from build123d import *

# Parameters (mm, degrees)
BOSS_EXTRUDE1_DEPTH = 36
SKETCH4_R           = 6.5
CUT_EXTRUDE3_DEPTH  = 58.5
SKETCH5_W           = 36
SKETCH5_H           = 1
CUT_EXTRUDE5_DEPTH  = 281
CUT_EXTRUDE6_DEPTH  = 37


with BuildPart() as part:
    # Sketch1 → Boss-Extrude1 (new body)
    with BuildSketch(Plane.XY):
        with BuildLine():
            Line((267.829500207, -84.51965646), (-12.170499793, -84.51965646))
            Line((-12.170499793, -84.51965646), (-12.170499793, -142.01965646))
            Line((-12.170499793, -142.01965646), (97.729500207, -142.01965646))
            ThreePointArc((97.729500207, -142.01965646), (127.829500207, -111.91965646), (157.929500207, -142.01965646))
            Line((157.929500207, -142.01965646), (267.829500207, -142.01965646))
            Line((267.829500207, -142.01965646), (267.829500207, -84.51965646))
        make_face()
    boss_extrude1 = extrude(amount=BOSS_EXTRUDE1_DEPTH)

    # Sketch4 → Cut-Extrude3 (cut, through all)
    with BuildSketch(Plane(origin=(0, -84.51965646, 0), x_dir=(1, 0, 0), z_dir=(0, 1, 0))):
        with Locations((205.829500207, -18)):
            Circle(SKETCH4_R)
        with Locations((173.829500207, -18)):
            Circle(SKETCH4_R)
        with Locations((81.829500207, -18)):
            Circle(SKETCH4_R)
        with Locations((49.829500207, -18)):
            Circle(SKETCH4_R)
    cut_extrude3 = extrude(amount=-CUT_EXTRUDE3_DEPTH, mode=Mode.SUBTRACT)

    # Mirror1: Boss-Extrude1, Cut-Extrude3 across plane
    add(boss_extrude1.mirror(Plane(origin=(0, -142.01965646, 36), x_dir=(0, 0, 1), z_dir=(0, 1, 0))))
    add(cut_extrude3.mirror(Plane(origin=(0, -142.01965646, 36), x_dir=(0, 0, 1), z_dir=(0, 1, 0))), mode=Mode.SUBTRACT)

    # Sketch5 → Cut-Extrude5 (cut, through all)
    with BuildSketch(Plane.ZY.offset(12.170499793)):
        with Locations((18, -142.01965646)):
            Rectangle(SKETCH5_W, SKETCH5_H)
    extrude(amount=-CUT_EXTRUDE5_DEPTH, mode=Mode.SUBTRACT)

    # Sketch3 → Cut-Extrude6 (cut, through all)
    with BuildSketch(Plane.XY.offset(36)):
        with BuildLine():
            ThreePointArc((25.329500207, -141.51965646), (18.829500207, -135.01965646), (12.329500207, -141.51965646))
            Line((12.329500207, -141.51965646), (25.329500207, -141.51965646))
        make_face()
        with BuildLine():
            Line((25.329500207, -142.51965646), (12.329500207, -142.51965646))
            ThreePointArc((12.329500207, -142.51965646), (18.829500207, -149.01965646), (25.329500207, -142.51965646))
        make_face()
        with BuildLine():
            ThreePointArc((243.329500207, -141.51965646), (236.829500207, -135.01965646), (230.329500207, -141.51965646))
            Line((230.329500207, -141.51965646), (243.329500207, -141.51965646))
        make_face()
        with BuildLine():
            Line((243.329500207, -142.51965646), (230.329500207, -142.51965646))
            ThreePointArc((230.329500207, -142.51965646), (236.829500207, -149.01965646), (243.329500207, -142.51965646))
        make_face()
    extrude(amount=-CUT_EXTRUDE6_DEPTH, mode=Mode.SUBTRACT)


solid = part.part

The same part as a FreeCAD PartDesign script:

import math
import FreeCAD as App
import Part
import Sketcher
from FreeCAD import Vector

doc = App.newDocument("Part")
params = doc.addObject("Spreadsheet::Sheet", "Params")
for row, (alias, value) in enumerate([
    ("sketch1_radius", "30.1 mm"),
    ("sketch1_width", "280 mm"),
    ("sketch1_height", "57.5 mm"),
    ("pad1_length", "36 mm"),
    ("sketch2_diameter", "13 mm"),
    ("sketch3_width", "1 mm"),
    ("sketch3_height", "36 mm"),
    ("sketch4_radius", "6.5 mm"),
], start=1):
    params.set(f"A{row}", alias)
    params.set(f"B{row}", "=" + value)
    params.setAlias(f"B{row}", alias)

body = doc.addObject("PartDesign::Body", "Body")
body.AllowCompound = True

# Sketch on XY plane
sketch1 = body.newObject("Sketcher::SketchObject", "Sketch")
sketch1.AttachmentSupport = (doc.getObject("XY_Plane"), [""])
sketch1.MapMode = "FlatFace"
sketch1.addGeometry([
    Part.LineSegment(Vector(268, -85, 0), Vector(-12, -85, 0)),  # 0
    Part.LineSegment(Vector(-12, -85, 0), Vector(-12, -142, 0)),  # 1
    Part.LineSegment(Vector(-12, -142, 0), Vector(98, -142, 0)),  # 2
    Part.ArcOfCircle(Part.Circle(Vector(128, -142, 0), Vector(0, 0, 1), 30), math.radians(0), math.radians(180)),  # 3
    Part.LineSegment(Vector(158, -142, 0), Vector(268, -142, 0)),  # 4
    Part.LineSegment(Vector(268, -142, 0), Vector(268, -85, 0)),  # 5
], False)
sketch1.addConstraint([
    Sketcher.Constraint("Coincident", 0, 2, 1, 1),
    Sketcher.Constraint("Coincident", 1, 2, 2, 1),
    Sketcher.Constraint("Coincident", 2, 2, 3, 2),
    Sketcher.Constraint("Coincident", 3, 1, 4, 1),
    Sketcher.Constraint("Coincident", 4, 2, 5, 1),
    Sketcher.Constraint("Coincident", 5, 2, 0, 1),
    Sketcher.Constraint("Horizontal", 0),
    Sketcher.Constraint("Vertical", 1),
    Sketcher.Constraint("Horizontal", 2),
    Sketcher.Constraint("Horizontal", 4),
    Sketcher.Constraint("Vertical", 5),
    Sketcher.Constraint("Horizontal", 3, 3, 1, 2),
    Sketcher.Constraint("Horizontal", 2, 2, 3, 1),
    Sketcher.Constraint("Equal", 2, 4),
    Sketcher.Constraint("Radius", 3, 30.1),
    Sketcher.Constraint("DistanceX", 0, 2, 0, 1, 280.0),
    Sketcher.Constraint("DistanceY", 1, 2, 1, 1, 57.5),
    Sketcher.Constraint("DistanceX", -1, 1, 3, 3, 127.8295),
    Sketcher.Constraint("DistanceY", 3, 3, -1, 1, 142.019656),
])
sketch1.setExpression("Constraints[14]", "Params.sketch1_radius")
sketch1.setExpression("Constraints[15]", "Params.sketch1_width")
sketch1.setExpression("Constraints[16]", "Params.sketch1_height")
pad1 = body.newObject("PartDesign::Pad", "Pad")
pad1.Profile = sketch1
pad1.setExpression("Length", "Params.pad1_length")

# Sketch on XZ plane
sketch2 = body.newObject("Sketcher::SketchObject", "Sketch001")
sketch2.AttachmentSupport = (doc.getObject("XZ_Plane"), [""])
sketch2.MapMode = "FlatFace"
sketch2.AttachmentOffset = App.Placement(Vector(0, 0, 84.519656), App.Rotation())
sketch2.addGeometry([
    Part.Circle(Vector(206, 18, 0), Vector(0, 0, 1), 6),
    Part.Circle(Vector(174, 18, 0), Vector(0, 0, 1), 6),
    Part.Circle(Vector(82, 18, 0), Vector(0, 0, 1), 6),
    Part.Circle(Vector(50, 18, 0), Vector(0, 0, 1), 6),
], False)
sketch2.addConstraint([
    Sketcher.Constraint("Equal", 0, 1),
    Sketcher.Constraint("Equal", 1, 2),
    Sketcher.Constraint("Equal", 2, 3),
    Sketcher.Constraint("Horizontal", 0, 3, 1, 3),
    Sketcher.Constraint("Horizontal", 1, 3, 2, 3),
    Sketcher.Constraint("Horizontal", 2, 3, 3, 3),
    Sketcher.Constraint("Diameter", 0, 13.0),
    Sketcher.Constraint("DistanceY", -1, 1, 0, 3, 18.0),
    Sketcher.Constraint("DistanceX", 1, 3, 0, 3, 32.0),
    Sketcher.Constraint("DistanceX", 2, 3, 1, 3, 92.0),
    Sketcher.Constraint("DistanceX", 3, 3, 2, 3, 32.0),
    Sketcher.Constraint("DistanceX", -1, 1, 0, 3, 205.8295),
])
sketch2.setExpression("Constraints[6]", "Params.sketch2_diameter")
pocket1 = body.newObject("PartDesign::Pocket", "Pocket")
pocket1.Profile = sketch2
pocket1.Type = "ThroughAll"
pocket1.Reversed = True
doc.recompute()

datumplane = body.newObject("PartDesign::Plane", "DatumPlane")
datumplane.AttachmentSupport = (doc.getObject("XZ_Plane"), [""])
datumplane.MapMode = "FlatFace"
datumplane.AttachmentOffset = App.Placement(Vector(0, 0, 142.019656), App.Rotation())
mirrored = body.newObject("PartDesign::Mirrored", "Mirrored")
mirrored.Originals = [pad1, pocket1]
mirrored.MirrorPlane = (datumplane, [""])
body.Tip = mirrored

# Sketch on YZ plane
sketch3 = body.newObject("Sketcher::SketchObject", "Sketch002")
sketch3.AttachmentSupport = (doc.getObject("YZ_Plane"), [""])
sketch3.MapMode = "FlatFace"
sketch3.AttachmentOffset = App.Placement(Vector(0, 0, -12.1705), App.Rotation())
sketch3.addGeometry([
    Part.LineSegment(Vector(-141.5, 0, 0), Vector(-142.5, 0, 0)),
    Part.LineSegment(Vector(-142.5, 0, 0), Vector(-142.5, 36, 0)),
    Part.LineSegment(Vector(-142.5, 36, 0), Vector(-141.5, 36, 0)),
    Part.LineSegment(Vector(-141.5, 36, 0), Vector(-141.5, 0, 0)),
], False)
sketch3.addConstraint([
    Sketcher.Constraint("Coincident", 0, 2, 1, 1),
    Sketcher.Constraint("Coincident", 1, 2, 2, 1),
    Sketcher.Constraint("Coincident", 2, 2, 3, 1),
    Sketcher.Constraint("Coincident", 3, 2, 0, 1),
    Sketcher.Constraint("Horizontal", 0),
    Sketcher.Constraint("Vertical", 1),
    Sketcher.Constraint("Horizontal", 2),
    Sketcher.Constraint("Vertical", 3),
    Sketcher.Constraint("PointOnObject", 0, 2, -1),
    Sketcher.Constraint("DistanceX", 0, 2, 0, 1, 1.0),
    Sketcher.Constraint("DistanceY", 1, 1, 1, 2, 36.0),
    Sketcher.Constraint("DistanceX", 0, 2, -1, 1, 142.519656),
])
sketch3.setExpression("Constraints[9]", "Params.sketch3_width")
sketch3.setExpression("Constraints[10]", "Params.sketch3_height")
pocket2 = body.newObject("PartDesign::Pocket", "Pocket001")
pocket2.Profile = sketch3
pocket2.Type = "ThroughAll"
pocket2.Reversed = True

# Sketch on XY plane
sketch4 = body.newObject("Sketcher::SketchObject", "Sketch003")
sketch4.AttachmentSupport = (doc.getObject("XY_Plane"), [""])
sketch4.MapMode = "FlatFace"
sketch4.AttachmentOffset = App.Placement(Vector(0, 0, 36), App.Rotation())
sketch4.addGeometry([
    Part.ArcOfCircle(Part.Circle(Vector(19, -142, 0), Vector(0, 0, 1), 6), math.radians(0), math.radians(180)),  # 0
    Part.LineSegment(Vector(12, -142, 0), Vector(25, -142, 0)),  # 1
    Part.LineSegment(Vector(25, -143, 0), Vector(12, -143, 0)),  # 2
    Part.ArcOfCircle(Part.Circle(Vector(19, -143, 0), Vector(0, 0, 1), 6), math.radians(180), math.radians(360)),  # 3
    Part.ArcOfCircle(Part.Circle(Vector(237, -142, 0), Vector(0, 0, 1), 6), math.radians(0), math.radians(180)),  # 4
    Part.LineSegment(Vector(230, -142, 0), Vector(243, -142, 0)),  # 5
    Part.LineSegment(Vector(243, -143, 0), Vector(230, -143, 0)),  # 6
    Part.ArcOfCircle(Part.Circle(Vector(237, -143, 0), Vector(0, 0, 1), 6), math.radians(180), math.radians(360)),  # 7
], False)
sketch4.addConstraint([
    Sketcher.Constraint("Coincident", 0, 1, 1, 2),
    Sketcher.Constraint("Coincident", 1, 1, 0, 2),
    Sketcher.Constraint("Coincident", 2, 1, 3, 2),
    Sketcher.Constraint("Coincident", 3, 1, 2, 2),
    Sketcher.Constraint("Coincident", 4, 1, 5, 2),
    Sketcher.Constraint("Coincident", 5, 1, 4, 2),
    Sketcher.Constraint("Coincident", 6, 1, 7, 2),
    Sketcher.Constraint("Coincident", 7, 1, 6, 2),
    Sketcher.Constraint("Horizontal", 1),
    Sketcher.Constraint("Horizontal", 2),
    Sketcher.Constraint("Horizontal", 5),
    Sketcher.Constraint("Horizontal", 6),
    Sketcher.Constraint("Equal", 0, 3),
    Sketcher.Constraint("Equal", 3, 4),
    Sketcher.Constraint("Equal", 4, 7),
    Sketcher.Constraint("Horizontal", 0, 3, 4, 3),
    Sketcher.Constraint("Horizontal", 3, 3, 7, 3),
    Sketcher.Constraint("Horizontal", 4, 3, 0, 1),
    Sketcher.Constraint("Horizontal", 7, 3, 2, 1),
    Sketcher.Constraint("Horizontal", 1, 1, 4, 1),
    Sketcher.Constraint("Horizontal", 3, 1, 6, 1),
    Sketcher.Constraint("Vertical", 0, 3, 3, 3),
    Sketcher.Constraint("Vertical", 4, 3, 7, 3),
    Sketcher.Constraint("Radius", 0, 6.5),
    Sketcher.Constraint("DistanceY", 3, 3, 0, 3, 1.0),
    Sketcher.Constraint("DistanceX", 0, 3, 4, 3, 218.0),
    Sketcher.Constraint("DistanceX", -1, 1, 0, 3, 18.8295),
    Sketcher.Constraint("DistanceY", 0, 3, -1, 1, 141.519656),
])
sketch4.setExpression("Constraints[23]", "Params.sketch4_radius")
pocket3 = body.newObject("PartDesign::Pocket", "Pocket002")
pocket3.Profile = sketch4
pocket3.Type = "ThroughAll"

doc.recompute()
